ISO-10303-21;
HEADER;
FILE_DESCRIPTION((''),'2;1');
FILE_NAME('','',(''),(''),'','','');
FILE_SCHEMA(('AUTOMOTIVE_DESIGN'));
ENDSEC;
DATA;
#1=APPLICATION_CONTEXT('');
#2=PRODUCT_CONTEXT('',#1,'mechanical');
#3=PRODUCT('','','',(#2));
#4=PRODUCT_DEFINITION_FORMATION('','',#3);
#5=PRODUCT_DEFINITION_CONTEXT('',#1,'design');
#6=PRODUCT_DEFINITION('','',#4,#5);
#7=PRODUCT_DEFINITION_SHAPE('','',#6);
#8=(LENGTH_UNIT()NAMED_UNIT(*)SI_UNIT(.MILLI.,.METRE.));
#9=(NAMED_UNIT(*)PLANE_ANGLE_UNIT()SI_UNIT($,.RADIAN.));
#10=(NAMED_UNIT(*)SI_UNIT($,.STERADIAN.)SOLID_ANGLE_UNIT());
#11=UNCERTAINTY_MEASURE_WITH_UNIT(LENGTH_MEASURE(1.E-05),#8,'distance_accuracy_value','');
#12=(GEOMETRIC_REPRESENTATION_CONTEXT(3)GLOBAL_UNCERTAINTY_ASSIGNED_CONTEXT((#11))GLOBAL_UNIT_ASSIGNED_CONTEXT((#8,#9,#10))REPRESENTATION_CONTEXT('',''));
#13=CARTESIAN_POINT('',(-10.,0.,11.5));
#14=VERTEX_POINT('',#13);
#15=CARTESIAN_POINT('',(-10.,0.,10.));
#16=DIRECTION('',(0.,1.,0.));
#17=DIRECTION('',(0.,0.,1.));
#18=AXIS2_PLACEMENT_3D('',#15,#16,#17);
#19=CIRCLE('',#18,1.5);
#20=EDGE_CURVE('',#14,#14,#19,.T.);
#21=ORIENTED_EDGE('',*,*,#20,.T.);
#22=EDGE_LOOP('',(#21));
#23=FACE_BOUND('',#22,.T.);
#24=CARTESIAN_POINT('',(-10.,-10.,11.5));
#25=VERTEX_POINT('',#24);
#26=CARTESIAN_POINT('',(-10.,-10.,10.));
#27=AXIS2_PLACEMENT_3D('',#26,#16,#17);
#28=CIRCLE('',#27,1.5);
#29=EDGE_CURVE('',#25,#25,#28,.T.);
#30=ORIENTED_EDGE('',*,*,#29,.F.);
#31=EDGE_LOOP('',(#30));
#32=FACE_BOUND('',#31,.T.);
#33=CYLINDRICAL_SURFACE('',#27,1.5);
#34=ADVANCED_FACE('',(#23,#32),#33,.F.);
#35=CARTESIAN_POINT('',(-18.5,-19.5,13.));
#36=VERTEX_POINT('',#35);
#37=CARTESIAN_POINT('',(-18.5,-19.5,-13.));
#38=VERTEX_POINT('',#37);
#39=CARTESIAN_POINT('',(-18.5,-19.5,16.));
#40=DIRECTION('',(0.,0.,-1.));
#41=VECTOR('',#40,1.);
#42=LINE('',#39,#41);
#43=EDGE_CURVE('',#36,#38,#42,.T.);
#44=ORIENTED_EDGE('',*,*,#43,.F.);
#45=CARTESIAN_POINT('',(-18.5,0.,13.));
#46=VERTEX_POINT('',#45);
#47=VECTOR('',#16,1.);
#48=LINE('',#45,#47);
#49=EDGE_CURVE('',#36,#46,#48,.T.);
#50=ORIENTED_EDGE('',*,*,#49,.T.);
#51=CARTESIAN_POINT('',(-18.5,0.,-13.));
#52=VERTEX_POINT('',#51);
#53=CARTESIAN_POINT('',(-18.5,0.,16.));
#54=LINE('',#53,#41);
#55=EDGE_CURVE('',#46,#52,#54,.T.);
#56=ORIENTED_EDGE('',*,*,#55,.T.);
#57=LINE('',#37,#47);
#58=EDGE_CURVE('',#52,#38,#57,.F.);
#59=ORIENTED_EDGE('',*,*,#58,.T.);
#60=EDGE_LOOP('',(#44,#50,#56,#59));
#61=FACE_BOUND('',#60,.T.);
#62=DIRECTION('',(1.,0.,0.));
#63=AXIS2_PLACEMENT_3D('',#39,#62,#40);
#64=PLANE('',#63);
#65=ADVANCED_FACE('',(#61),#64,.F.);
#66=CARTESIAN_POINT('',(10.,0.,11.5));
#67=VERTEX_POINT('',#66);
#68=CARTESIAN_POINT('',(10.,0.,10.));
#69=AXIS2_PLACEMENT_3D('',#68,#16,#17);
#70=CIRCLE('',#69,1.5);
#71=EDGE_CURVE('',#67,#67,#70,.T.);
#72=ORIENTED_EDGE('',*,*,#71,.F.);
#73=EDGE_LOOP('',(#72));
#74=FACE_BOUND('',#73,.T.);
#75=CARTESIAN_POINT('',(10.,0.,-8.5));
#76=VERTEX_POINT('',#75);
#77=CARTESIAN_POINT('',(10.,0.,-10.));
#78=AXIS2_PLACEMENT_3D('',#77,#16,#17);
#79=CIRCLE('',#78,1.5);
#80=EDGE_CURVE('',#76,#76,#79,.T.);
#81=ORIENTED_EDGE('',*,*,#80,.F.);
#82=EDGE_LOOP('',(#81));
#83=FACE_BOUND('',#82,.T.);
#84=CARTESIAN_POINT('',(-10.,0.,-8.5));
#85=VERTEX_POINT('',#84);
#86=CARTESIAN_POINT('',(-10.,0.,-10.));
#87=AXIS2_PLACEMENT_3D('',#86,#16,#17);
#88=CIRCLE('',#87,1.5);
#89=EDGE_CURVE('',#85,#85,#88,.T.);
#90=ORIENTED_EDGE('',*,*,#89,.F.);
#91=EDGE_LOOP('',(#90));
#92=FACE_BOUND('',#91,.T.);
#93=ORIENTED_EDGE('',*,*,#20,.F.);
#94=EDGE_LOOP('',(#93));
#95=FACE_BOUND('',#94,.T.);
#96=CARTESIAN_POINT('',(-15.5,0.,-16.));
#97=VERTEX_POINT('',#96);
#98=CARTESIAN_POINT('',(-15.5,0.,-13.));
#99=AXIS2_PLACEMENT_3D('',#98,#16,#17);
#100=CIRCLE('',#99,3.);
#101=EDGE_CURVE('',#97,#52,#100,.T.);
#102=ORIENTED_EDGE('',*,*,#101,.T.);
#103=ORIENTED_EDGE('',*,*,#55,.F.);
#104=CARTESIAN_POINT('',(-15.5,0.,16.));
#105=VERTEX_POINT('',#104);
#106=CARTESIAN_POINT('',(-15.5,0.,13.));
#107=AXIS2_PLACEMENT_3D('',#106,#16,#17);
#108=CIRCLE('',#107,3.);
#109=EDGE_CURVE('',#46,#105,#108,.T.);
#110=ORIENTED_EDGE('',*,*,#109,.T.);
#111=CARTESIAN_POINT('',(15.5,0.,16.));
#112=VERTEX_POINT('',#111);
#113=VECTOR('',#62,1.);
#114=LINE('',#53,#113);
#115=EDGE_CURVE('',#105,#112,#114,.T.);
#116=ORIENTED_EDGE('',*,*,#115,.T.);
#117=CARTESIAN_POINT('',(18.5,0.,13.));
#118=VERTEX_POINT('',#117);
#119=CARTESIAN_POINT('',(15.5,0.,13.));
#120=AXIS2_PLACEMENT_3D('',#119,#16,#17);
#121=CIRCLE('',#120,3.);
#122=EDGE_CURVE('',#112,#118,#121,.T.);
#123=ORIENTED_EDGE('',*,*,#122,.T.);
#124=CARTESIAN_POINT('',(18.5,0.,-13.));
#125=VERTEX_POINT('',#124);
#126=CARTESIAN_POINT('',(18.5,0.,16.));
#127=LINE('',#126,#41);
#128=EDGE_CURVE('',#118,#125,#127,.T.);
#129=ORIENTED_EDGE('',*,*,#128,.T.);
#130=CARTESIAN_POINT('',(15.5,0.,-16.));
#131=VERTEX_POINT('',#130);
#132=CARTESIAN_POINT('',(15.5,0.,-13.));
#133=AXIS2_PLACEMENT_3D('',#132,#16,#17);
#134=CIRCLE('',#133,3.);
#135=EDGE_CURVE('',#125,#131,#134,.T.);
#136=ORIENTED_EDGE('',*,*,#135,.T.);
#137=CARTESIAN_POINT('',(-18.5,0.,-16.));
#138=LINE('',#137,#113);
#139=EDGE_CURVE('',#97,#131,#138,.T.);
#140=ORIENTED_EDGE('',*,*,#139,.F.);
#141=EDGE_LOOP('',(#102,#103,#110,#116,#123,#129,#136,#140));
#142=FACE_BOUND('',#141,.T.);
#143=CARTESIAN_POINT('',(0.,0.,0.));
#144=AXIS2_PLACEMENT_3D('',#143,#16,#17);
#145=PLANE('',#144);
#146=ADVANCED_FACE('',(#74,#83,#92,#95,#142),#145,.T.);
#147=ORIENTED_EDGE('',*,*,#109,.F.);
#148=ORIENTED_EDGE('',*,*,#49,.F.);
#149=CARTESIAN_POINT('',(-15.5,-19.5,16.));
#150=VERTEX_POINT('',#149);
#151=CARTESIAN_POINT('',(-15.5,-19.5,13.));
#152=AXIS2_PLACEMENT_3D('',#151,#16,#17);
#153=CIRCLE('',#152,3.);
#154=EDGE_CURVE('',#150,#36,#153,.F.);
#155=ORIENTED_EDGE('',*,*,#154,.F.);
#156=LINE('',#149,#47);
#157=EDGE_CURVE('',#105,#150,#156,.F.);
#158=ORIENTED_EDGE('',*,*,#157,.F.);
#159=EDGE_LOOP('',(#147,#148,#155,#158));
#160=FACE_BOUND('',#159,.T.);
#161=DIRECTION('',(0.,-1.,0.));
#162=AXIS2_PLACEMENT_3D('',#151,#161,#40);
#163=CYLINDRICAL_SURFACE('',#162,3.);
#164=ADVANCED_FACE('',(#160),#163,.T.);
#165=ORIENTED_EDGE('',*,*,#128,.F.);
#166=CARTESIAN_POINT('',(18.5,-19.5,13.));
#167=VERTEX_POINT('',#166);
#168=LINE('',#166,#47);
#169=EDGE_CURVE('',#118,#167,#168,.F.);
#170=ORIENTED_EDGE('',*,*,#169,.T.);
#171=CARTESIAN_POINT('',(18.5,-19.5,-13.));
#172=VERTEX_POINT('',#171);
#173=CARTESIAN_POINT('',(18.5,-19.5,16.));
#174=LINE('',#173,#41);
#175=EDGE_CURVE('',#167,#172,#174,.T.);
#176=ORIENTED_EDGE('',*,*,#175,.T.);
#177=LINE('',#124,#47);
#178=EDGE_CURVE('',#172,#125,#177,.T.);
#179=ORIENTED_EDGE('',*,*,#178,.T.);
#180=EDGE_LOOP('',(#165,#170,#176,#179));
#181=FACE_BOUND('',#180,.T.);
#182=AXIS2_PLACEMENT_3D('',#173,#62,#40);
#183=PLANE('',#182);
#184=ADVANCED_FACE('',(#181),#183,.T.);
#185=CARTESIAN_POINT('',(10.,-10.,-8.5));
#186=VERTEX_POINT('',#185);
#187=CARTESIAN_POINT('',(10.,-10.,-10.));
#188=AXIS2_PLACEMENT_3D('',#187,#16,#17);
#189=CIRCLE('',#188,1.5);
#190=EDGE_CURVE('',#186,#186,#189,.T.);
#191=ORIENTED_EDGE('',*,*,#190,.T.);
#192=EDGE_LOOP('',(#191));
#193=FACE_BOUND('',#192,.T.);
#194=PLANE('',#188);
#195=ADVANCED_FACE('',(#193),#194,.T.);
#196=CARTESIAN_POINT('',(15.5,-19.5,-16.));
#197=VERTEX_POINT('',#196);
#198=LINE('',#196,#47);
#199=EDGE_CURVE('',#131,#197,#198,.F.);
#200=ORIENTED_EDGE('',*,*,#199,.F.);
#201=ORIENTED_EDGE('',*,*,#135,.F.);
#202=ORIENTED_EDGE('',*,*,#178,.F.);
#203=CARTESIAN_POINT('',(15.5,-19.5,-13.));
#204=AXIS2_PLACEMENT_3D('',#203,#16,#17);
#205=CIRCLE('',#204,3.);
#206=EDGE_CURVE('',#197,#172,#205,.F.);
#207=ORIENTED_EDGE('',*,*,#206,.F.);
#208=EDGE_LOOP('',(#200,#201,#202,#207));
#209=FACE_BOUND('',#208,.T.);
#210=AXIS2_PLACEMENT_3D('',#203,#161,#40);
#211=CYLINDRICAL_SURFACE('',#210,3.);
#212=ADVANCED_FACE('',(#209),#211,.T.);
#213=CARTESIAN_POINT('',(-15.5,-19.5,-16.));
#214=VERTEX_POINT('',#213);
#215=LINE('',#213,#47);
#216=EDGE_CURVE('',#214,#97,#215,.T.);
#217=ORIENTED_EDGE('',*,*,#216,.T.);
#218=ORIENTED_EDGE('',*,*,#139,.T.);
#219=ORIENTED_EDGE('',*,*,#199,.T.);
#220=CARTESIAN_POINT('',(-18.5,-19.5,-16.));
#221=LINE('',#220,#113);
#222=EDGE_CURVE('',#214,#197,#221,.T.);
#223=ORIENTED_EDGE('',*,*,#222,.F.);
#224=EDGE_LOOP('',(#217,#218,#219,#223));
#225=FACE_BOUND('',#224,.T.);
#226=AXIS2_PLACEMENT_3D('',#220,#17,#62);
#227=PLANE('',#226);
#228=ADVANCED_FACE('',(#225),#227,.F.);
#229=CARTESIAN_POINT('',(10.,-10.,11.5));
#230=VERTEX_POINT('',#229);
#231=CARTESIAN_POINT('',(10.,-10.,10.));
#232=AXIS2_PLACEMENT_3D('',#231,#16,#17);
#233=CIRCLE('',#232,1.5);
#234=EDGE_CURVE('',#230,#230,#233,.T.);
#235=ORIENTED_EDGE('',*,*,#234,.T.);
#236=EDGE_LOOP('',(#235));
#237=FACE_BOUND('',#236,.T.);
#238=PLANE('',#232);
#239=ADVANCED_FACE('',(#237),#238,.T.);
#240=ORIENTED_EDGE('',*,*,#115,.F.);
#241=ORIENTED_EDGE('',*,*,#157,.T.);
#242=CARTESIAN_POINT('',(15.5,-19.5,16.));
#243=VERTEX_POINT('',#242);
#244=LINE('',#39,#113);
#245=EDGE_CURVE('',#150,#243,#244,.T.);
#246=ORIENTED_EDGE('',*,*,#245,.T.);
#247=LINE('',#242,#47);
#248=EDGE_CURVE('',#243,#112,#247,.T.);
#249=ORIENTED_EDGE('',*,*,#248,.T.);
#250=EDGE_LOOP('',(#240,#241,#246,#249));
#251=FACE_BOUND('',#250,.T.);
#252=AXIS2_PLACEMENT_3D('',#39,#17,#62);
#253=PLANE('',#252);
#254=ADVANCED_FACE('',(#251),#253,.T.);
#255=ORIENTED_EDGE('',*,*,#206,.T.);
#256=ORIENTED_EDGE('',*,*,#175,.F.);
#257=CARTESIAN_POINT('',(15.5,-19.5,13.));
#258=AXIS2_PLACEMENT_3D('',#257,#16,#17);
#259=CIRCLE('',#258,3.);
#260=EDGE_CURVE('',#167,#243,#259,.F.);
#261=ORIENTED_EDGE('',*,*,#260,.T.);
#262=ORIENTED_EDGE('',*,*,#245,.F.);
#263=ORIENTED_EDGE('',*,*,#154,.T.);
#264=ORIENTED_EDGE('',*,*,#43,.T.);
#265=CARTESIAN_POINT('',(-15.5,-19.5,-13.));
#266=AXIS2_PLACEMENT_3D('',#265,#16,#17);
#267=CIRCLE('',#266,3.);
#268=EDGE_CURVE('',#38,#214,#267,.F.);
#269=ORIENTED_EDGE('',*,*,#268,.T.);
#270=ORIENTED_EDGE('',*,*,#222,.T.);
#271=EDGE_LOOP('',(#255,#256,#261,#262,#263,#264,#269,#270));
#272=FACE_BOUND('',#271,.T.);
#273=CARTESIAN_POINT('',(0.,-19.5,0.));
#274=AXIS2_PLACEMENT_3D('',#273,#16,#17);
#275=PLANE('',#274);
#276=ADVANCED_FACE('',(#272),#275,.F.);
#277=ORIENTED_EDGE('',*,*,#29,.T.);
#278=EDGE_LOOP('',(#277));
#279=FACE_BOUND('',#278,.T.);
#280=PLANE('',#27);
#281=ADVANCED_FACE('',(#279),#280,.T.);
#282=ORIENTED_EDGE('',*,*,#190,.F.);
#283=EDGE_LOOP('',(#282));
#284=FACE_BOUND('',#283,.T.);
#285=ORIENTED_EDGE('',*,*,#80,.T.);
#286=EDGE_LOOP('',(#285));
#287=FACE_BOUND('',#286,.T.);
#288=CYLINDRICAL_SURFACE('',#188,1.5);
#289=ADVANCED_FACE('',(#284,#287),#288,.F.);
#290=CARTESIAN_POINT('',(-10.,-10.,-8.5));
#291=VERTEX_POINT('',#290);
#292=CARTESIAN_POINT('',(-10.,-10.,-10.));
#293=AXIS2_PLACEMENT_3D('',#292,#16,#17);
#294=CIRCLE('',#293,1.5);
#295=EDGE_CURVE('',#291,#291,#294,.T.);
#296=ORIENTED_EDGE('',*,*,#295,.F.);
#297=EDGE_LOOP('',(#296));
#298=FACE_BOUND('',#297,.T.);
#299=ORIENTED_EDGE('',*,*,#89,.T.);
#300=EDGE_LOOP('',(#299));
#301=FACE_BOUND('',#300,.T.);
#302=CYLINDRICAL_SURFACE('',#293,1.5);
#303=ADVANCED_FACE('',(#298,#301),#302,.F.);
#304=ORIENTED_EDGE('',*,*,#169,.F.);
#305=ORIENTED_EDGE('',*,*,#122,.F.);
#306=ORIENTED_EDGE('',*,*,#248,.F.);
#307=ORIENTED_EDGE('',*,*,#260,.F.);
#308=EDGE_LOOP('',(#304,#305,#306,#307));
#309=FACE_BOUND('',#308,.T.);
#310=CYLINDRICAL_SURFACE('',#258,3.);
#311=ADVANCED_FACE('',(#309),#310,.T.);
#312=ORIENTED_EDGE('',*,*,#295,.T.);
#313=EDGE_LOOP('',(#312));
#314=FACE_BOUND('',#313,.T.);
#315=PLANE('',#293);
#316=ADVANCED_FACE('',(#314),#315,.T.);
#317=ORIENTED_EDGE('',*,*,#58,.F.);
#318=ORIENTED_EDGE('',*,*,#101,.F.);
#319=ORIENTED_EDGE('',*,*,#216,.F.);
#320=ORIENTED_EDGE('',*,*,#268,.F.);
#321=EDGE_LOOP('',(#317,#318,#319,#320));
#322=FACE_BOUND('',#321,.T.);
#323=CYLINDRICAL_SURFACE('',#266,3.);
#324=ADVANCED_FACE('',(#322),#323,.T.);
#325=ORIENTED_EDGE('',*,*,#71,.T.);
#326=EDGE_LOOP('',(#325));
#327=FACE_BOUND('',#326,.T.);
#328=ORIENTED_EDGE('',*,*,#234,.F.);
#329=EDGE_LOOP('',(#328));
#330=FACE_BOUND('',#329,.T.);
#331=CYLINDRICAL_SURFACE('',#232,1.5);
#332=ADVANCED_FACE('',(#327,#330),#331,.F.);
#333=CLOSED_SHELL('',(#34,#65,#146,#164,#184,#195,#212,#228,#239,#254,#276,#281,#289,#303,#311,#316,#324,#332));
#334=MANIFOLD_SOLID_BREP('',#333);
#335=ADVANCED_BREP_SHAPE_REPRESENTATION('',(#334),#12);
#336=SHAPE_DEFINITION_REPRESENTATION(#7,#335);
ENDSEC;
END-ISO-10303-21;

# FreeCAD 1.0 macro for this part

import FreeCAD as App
import Part
import Sketcher


def edges_at(feature, points):
    """Names of the edges that pass closest to the given points."""
    edges = feature.Shape.Edges
    near = lambda p: min(range(len(edges)), key=lambda i: edges[i].distToShape(Part.Vertex(*p))[0])
    return sorted({f"Edge{near(p) + 1}" for p in points})


def add_polygon(sketch, points):
    """Adds a closed chain of lines whose ends are joined by coincident constraints."""
    first, n = sketch.GeometryCount, len(points)
    for a, b in zip(points, points[1:] + points[:1]):
        sketch.addGeometry(Part.LineSegment(App.Vector(*a, 0), App.Vector(*b, 0)), False)
    for i in range(n):
        sketch.addConstraint(Sketcher.Constraint("Coincident", first + i, 2, first + (i + 1) % n, 1))

doc = App.newDocument("Part")
body = doc.addObject("PartDesign::Body", "Body")

# Sketch on XZ plane
sketch1 = doc.addObject("Sketcher::SketchObject", "Sketch")
body.addObject(sketch1)
sketch1.AttachmentSupport = (doc.XZ_Plane, [""])
sketch1.MapMode = "FlatFace"
add_polygon(sketch1, [(-18, -16), (-18, 16), (18, 16), (18, -16)])  # lines 0-3
sketch1.addConstraint(Sketcher.Constraint("Vertical", 0))
sketch1.addConstraint(Sketcher.Constraint("Horizontal", 1))
sketch1.addConstraint(Sketcher.Constraint("Vertical", 2))
sketch1.addConstraint(Sketcher.Constraint("Horizontal", 3))
sketch1.addConstraint(Sketcher.Constraint("Symmetric", 0, 2, 2, 2, -1, 1))
sketch1.addConstraint(Sketcher.Constraint("DistanceX", 1, 1, 1, 2, 37.0))
sketch1.addConstraint(Sketcher.Constraint("DistanceY", 0, 1, 0, 2, 32.0))
pad1 = doc.addObject("PartDesign::Pad", "Pad")
body.addObject(pad1)
pad1.Profile = sketch1
pad1.Length = 19.5

# Sketch on XZ plane
sketch2 = doc.addObject("Sketcher::SketchObject", "Sketch001")
body.addObject(sketch2)
sketch2.AttachmentSupport = (doc.XZ_Plane, [""])
sketch2.MapMode = "FlatFace"
sketch2.addGeometry(Part.Circle(App.Vector(-10, -10, 0), App.Vector(0, 0, 1), 1.5), False)
sketch2.addGeometry(Part.Circle(App.Vector(10, -10, 0), App.Vector(0, 0, 1), 1.5), False)
sketch2.addGeometry(Part.Circle(App.Vector(10, 10, 0), App.Vector(0, 0, 1), 1.5), False)
sketch2.addGeometry(Part.Circle(App.Vector(-10, 10, 0), App.Vector(0, 0, 1), 1.5), False)
sketch2.addConstraint(Sketcher.Constraint("Equal", 0, 1))
sketch2.addConstraint(Sketcher.Constraint("Equal", 1, 2))
sketch2.addConstraint(Sketcher.Constraint("Equal", 2, 3))
sketch2.addConstraint(Sketcher.Constraint("Symmetric", 0, 3, 2, 3, -1, 1))
sketch2.addConstraint(Sketcher.Constraint("Symmetric", 1, 3, 3, 3, -1, 1))
sketch2.addConstraint(Sketcher.Constraint("Symmetric", 0, 3, 1, 3, -2))
sketch2.addConstraint(Sketcher.Constraint("Diameter", 0, 3.0))
sketch2.addConstraint(Sketcher.Constraint("DistanceX", 0, 3, -1, 1, 10.0))
sketch2.addConstraint(Sketcher.Constraint("DistanceY", 0, 3, -1, 1, 10.0))
pocket1 = doc.addObject("PartDesign::Pocket", "Pocket")
body.addObject(pocket1)
pocket1.Profile = sketch2
pocket1.Length = 10
pocket1.Reversed = True
doc.recompute()

fillet = doc.addObject("PartDesign::Fillet", "Fillet")
body.addObject(fillet)
fillet.Base = (pocket1, edges_at(pocket1, [
    (-18.5, -9.75, 16),
    (-18.5, -9.75, -16),
    (18.5, -9.75, -16),
    (18.5, -9.75, 16),
]))
fillet.Radius = 3

doc.recompute()
